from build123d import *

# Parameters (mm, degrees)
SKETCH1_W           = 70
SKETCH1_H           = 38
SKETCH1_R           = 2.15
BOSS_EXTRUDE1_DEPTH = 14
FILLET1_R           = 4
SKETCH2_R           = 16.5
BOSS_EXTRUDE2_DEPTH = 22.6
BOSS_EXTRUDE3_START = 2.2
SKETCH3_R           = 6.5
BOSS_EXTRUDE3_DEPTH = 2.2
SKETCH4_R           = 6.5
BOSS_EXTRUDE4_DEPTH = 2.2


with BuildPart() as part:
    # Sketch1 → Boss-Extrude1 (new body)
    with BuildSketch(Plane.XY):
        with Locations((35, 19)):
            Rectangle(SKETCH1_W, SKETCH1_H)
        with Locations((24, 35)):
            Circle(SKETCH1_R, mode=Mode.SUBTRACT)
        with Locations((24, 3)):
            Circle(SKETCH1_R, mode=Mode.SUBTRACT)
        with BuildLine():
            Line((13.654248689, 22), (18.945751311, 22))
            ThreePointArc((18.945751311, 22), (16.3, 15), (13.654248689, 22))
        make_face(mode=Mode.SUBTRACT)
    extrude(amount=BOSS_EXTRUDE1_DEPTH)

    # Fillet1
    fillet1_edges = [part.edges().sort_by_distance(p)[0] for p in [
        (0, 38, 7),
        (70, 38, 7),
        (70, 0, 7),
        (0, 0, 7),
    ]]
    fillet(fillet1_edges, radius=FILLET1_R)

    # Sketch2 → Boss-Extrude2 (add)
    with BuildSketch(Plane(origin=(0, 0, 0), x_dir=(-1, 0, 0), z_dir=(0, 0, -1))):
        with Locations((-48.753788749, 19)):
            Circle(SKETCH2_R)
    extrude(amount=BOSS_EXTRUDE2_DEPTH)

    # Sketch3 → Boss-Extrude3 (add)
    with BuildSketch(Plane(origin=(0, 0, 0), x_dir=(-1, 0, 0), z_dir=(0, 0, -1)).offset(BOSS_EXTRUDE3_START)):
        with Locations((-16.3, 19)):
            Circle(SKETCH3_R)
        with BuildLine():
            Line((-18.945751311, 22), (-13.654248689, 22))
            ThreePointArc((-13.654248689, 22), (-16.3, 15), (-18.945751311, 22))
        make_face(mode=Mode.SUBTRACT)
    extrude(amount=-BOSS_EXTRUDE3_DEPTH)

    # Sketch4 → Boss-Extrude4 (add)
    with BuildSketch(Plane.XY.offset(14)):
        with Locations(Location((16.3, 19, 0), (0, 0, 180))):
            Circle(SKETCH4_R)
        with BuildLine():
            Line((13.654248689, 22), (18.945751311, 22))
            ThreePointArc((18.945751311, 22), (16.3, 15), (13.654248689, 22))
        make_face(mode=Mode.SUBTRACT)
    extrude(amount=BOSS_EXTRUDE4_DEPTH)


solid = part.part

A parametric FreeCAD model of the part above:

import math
import FreeCAD as App
import Part
import Sketcher
from FreeCAD import Vector


def edges_at(feature, points):
    """Names of the edges that pass closest to the given points."""
    edges = feature.Shape.Edges
    near = lambda p: min(range(len(edges)), key=lambda i: edges[i].distToShape(Part.Vertex(*p))[0])
    return sorted({f"Edge{near(p) + 1}" for p in points})


def add_polygon(sketch, points):
    """Adds a closed chain of lines whose ends are joined by coincident constraints."""
    first, n = sketch.GeometryCount, len(points)
    for a, b in zip(points, points[1:] + points[:1]):
        sketch.addGeometry(Part.LineSegment(App.Vector(*a, 0), App.Vector(*b, 0)), False)
    for i in range(n):
        sketch.addConstraint(Sketcher.Constraint("Coincident", first + i, 2, first + (i + 1) % n, 1))

doc = App.newDocument("Part")
body = doc.addObject("PartDesign::Body", "Body")

sketch1 = body.newObject("Sketcher::SketchObject", "Sketch")
sketch1.AttachmentSupport = (doc.getObject("XY_Plane"), [""])
sketch1.MapMode = "FlatFace"
add_polygon(sketch1, [(0, 38), (0, 0), (70, 0), (70, 38)])
sketch1.addGeometry(Part.ArcOfCircle(Part.Circle(Vector(16.3, 19, 0), Vector(0, 0, 1), 4), math.radians(131.409622), math.radians(408.590378)), False)
sketch1.addGeometry(Part.LineSegment(Vector(13.654249, 22, 0), Vector(18.945751, 22, 0)), False)
sketch1.addGeometry(Part.Circle(Vector(24, 3, 0), Vector(0, 0, 1), 2.15), False)
sketch1.addGeometry(Part.Circle(Vector(24, 35, 0), Vector(0, 0, 1), 2.15), False)
sketch1.addConstraint(Sketcher.Constraint("Coincident", 4, 1, 5, 1))
sketch1.addConstraint(Sketcher.Constraint("Coincident", 5, 2, 4, 2))
sketch1.addConstraint(Sketcher.Constraint("Vertical", 0))
sketch1.addConstraint(Sketcher.Constraint("Horizontal", 1))
sketch1.addConstraint(Sketcher.Constraint("Vertical", 2))
sketch1.addConstraint(Sketcher.Constraint("Horizontal", 3))
sketch1.addConstraint(Sketcher.Constraint("Horizontal", 5))
sketch1.addConstraint(Sketcher.Constraint("Coincident", 0, 2, -1, 1))
sketch1.addConstraint(Sketcher.Constraint("Equal", 6, 7))
sketch1.addConstraint(Sketcher.Constraint("Vertical", 6, 3, 7, 3))
sketch1.addConstraint(Sketcher.Constraint("Radius", 4, 4.0))
sketch1.addConstraint(Sketcher.Constraint("Diameter", 6, 4.3))
sketch1.addConstraint(Sketcher.Constraint("DistanceX", 1, 1, 1, 2, 70.0))
sketch1.addConstraint(Sketcher.Constraint("DistanceY", 0, 2, 0, 1, 38.0))
sketch1.addConstraint(Sketcher.Constraint("DistanceY", -1, 1, 4, 3, 19.0))
sketch1.addConstraint(Sketcher.Constraint("DistanceX", -1, 1, 6, 3, 24.0))
sketch1.addConstraint(Sketcher.Constraint("DistanceY", -1, 1, 6, 3, 3.0))
sketch1.addConstraint(Sketcher.Constraint("DistanceY", -1, 1, 7, 3, 35.0))
sketch1.addConstraint(Sketcher.Constraint("DistanceY", -1, 1, 4, 1, 22.0))
sketch1.addConstraint(Sketcher.Constraint("DistanceX", -1, 1, 4, 3, 16.3))
pad1 = body.newObject("PartDesign::Pad", "Pad")
pad1.Profile = sketch1
pad1.Length = 14
doc.recompute()

fillet = body.newObject("PartDesign::Fillet", "Fillet")
fillet.Base = (pad1, edges_at(pad1, [
    (0, 38, 7),
    (70, 38, 7),
    (70, 0, 7),
    (0, 0, 7),
]))
fillet.Radius = 4

sketch2 = body.newObject("Sketcher::SketchObject", "Sketch001")
sketch2.AttachmentSupport = (doc.getObject("XY_Plane"), [""])
sketch2.MapMode = "FlatFace"
sketch2.addGeometry(Part.Circle(Vector(48.753789, 19, 0), Vector(0, 0, 1), 16.5), False)
sketch2.addConstraint(Sketcher.Constraint("Diameter", 0, 33.0))
sketch2.addConstraint(Sketcher.Constraint("DistanceY", -1, 1, 0, 3, 19.0))
sketch2.addConstraint(Sketcher.Constraint("DistanceX", -1, 1, 0, 3, 48.753789))
pad2 = body.newObject("PartDesign::Pad", "Pad001")
pad2.Profile = sketch2
pad2.Length = 22.6
pad2.Reversed = True

sketch3 = body.newObject("Sketcher::SketchObject", "Sketch002")
sketch3.AttachmentSupport = (doc.getObject("XY_Plane"), [""])
sketch3.MapMode = "FlatFace"
sketch3.AttachmentOffset = App.Placement(Vector(0, 0, -2.2), App.Rotation())
sketch3.addGeometry(Part.Circle(Vector(16.3, 19, 0), Vector(0, 0, 1), 6.5), False)
sketch3.addGeometry(Part.ArcOfCircle(Part.Circle(Vector(16.3, 19, 0), Vector(0, 0, 1), 4), math.radians(131.409622), math.radians(408.590378)), False)
sketch3.addGeometry(Part.LineSegment(Vector(18.945751, 22, 0), Vector(13.654249, 22, 0)), False)
sketch3.addConstraint(Sketcher.Constraint("Coincident", 1, 1, 2, 2))
sketch3.addConstraint(Sketcher.Constraint("Coincident", 2, 1, 1, 2))
sketch3.addConstraint(Sketcher.Constraint("Horizontal", 2))
sketch3.addConstraint(Sketcher.Constraint("Coincident", 1, 3, 0, 3))
sketch3.addConstraint(Sketcher.Constraint("Diameter", 0, 13.0))
sketch3.addConstraint(Sketcher.Constraint("Radius", 1, 4.0))
sketch3.addConstraint(Sketcher.Constraint("DistanceY", -1, 1, 0, 3, 19.0))
sketch3.addConstraint(Sketcher.Constraint("DistanceY", -1, 1, 1, 1, 22.0))
sketch3.addConstraint(Sketcher.Constraint("DistanceX", -1, 1, 0, 3, 16.3))
pad3 = body.newObject("PartDesign::Pad", "Pad002")
pad3.Profile = sketch3
pad3.Length = 2.2

sketch4 = body.newObject("Sketcher::SketchObject", "Sketch003")
sketch4.AttachmentSupport = (doc.getObject("XY_Plane"), [""])
sketch4.MapMode = "FlatFace"
sketch4.AttachmentOffset = App.Placement(Vector(0, 0, 14), App.Rotation())
sketch4.addGeometry(Part.Circle(Vector(16.3, 19, 0), Vector(0, 0, 1), 6.5), False)
sketch4.addGeometry(Part.ArcOfCircle(Part.Circle(Vector(16.3, 19, 0), Vector(0, 0, 1), 4), math.radians(131.409622), math.radians(408.590378)), False)
sketch4.addGeometry(Part.LineSegment(Vector(13.654249, 22, 0), Vector(18.945751, 22, 0)), False)
sketch4.addConstraint(Sketcher.Constraint("Coincident", 1, 1, 2, 1))
sketch4.addConstraint(Sketcher.Constraint("Coincident", 2, 2, 1, 2))
sketch4.addConstraint(Sketcher.Constraint("Horizontal", 2))
sketch4.addConstraint(Sketcher.Constraint("Coincident", 1, 3, 0, 3))
sketch4.addConstraint(Sketcher.Constraint("Diameter", 0, 13.0))
sketch4.addConstraint(Sketcher.Constraint("Radius", 1, 4.0))
sketch4.addConstraint(Sketcher.Constraint("DistanceY", -1, 1, 0, 3, 19.0))
sketch4.addConstraint(Sketcher.Constraint("DistanceY", -1, 1, 1, 1, 22.0))
sketch4.addConstraint(Sketcher.Constraint("DistanceX", -1, 1, 0, 3, 16.3))
pad4 = body.newObject("PartDesign::Pad", "Pad003")
pad4.Profile = sketch4
pad4.Length = 2.2

doc.recompute()
